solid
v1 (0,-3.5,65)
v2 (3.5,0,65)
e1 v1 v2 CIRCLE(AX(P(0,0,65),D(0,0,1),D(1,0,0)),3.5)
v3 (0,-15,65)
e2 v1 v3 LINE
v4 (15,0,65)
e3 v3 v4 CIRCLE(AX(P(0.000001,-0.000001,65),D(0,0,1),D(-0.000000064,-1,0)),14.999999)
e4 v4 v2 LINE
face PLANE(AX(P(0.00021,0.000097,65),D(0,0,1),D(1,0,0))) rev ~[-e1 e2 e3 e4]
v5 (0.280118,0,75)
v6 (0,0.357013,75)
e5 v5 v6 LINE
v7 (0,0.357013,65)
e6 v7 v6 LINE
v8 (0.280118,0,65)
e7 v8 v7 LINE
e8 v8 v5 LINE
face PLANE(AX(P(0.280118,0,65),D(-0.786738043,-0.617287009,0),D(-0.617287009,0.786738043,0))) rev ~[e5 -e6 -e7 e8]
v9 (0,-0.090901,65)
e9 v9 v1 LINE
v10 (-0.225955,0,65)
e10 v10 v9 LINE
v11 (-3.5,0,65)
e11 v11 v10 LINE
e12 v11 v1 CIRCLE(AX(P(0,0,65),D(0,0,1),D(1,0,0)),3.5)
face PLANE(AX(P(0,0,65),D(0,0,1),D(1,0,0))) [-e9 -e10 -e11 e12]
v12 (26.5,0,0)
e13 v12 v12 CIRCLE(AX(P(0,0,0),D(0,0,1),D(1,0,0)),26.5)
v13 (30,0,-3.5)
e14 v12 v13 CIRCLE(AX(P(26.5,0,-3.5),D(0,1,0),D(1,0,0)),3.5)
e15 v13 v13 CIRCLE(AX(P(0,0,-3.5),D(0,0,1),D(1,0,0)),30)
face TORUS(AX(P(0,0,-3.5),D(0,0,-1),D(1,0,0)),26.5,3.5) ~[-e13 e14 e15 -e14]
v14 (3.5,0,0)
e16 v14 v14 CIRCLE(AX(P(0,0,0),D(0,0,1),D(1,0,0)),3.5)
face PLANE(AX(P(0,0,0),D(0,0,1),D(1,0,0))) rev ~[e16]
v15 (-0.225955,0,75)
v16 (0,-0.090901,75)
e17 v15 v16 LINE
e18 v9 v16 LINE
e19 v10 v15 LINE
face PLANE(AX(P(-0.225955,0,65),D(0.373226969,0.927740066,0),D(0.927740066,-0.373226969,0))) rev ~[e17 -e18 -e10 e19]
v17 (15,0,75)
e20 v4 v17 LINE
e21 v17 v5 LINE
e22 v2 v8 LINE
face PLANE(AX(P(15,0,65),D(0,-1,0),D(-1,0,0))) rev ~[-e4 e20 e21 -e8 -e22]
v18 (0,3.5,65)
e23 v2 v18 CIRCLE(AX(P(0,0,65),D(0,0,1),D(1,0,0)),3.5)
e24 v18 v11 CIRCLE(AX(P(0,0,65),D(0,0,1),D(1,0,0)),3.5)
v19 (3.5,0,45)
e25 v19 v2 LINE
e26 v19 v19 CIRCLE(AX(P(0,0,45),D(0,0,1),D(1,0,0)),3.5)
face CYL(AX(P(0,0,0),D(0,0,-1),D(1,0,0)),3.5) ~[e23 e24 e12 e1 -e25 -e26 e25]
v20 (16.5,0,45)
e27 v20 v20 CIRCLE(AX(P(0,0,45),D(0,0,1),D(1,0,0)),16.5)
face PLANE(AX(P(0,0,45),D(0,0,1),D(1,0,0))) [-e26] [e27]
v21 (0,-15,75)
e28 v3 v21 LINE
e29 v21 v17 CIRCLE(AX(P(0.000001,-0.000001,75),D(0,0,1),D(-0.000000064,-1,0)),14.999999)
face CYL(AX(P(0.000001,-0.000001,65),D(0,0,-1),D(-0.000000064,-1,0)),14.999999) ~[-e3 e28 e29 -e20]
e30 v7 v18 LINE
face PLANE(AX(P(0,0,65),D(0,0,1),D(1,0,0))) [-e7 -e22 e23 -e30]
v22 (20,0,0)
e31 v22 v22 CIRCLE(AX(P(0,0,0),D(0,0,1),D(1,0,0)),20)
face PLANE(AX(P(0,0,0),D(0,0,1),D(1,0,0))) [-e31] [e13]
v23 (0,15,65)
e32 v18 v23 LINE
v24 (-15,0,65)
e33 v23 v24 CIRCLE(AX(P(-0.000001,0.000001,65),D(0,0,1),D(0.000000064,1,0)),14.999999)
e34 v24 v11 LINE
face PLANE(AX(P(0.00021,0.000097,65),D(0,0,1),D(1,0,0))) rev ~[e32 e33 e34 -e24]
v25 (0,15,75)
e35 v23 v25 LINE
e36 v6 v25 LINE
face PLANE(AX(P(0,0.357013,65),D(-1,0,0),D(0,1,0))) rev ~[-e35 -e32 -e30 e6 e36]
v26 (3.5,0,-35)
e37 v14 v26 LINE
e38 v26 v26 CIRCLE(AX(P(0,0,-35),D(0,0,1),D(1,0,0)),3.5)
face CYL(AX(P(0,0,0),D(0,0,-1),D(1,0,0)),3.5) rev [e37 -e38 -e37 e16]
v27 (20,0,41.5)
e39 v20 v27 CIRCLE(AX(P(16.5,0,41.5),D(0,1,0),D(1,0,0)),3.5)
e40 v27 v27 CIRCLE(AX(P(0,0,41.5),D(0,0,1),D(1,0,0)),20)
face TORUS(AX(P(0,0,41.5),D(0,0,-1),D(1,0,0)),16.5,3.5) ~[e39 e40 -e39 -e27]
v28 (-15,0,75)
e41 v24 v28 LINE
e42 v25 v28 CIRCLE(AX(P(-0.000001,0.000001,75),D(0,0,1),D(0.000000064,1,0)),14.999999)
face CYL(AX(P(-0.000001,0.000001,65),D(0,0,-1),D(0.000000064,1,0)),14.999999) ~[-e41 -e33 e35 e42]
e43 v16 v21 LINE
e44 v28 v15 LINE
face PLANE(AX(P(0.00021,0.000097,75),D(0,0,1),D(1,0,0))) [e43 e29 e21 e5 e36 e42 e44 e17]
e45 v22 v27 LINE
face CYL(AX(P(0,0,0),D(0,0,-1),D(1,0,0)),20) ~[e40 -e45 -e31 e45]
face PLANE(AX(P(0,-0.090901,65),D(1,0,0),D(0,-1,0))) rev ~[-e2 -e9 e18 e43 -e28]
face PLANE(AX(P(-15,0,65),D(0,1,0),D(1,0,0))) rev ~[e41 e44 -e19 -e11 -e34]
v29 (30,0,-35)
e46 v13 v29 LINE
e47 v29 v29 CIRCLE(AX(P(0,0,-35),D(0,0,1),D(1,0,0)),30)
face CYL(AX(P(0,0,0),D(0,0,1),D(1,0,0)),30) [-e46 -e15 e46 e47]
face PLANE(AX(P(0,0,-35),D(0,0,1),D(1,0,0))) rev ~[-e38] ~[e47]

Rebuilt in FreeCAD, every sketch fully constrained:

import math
import FreeCAD as App
import Part
import Sketcher
from FreeCAD import Vector


def edges_at(feature, points):
    """Names of the edges that pass closest to the given points."""
    edges = feature.Shape.Edges
    near = lambda p: min(range(len(edges)), key=lambda i: edges[i].distToShape(Part.Vertex(*p))[0])
    return sorted({f"Edge{near(p) + 1}" for p in points})

doc = App.newDocument("Part")
body = doc.addObject("PartDesign::Body", "Body")

# Sketch on XY plane
sketch1 = body.newObject("Sketcher::SketchObject", "Sketch")
sketch1.AttachmentSupport = (doc.getObject("XY_Plane"), [""])
sketch1.MapMode = "FlatFace"
sketch1.addGeometry(Part.Circle(Vector(0, 0, 0), Vector(0, 0, 1), 30), False)
sketch1.addGeometry(Part.Circle(Vector(0, 0, 0), Vector(0, 0, 1), 3.5), False)
sketch1.addConstraint(Sketcher.Constraint("Coincident", 0, 3, -1, 1))
sketch1.addConstraint(Sketcher.Constraint("Coincident", 1, 3, -1, 1))
sketch1.addConstraint(Sketcher.Constraint("Diameter", 0, 60.0))
sketch1.addConstraint(Sketcher.Constraint("Diameter", 1, 7.0))
pad1 = body.newObject("PartDesign::Pad", "Pad")
pad1.Profile = sketch1
pad1.Length = 35
pad1.Reversed = True

# Sketch on XY plane
sketch2 = body.newObject("Sketcher::SketchObject", "Sketch001")
sketch2.AttachmentSupport = (doc.getObject("XY_Plane"), [""])
sketch2.MapMode = "FlatFace"
sketch2.addGeometry(Part.Circle(Vector(0, 0, 0), Vector(0, 0, 1), 20), False)
sketch2.addGeometry(Part.Circle(Vector(0, 0, 0), Vector(0, 0, 1), 3.5), False)
sketch2.addConstraint(Sketcher.Constraint("Coincident", 0, 3, -1, 1))
sketch2.addConstraint(Sketcher.Constraint("Coincident", 1, 3, -1, 1))
sketch2.addConstraint(Sketcher.Constraint("Diameter", 0, 40.0))
sketch2.addConstraint(Sketcher.Constraint("Diameter", 1, 7.0))
pad2 = body.newObject("PartDesign::Pad", "Pad001")
pad2.Profile = sketch2
pad2.Length = 45

# Sketch on XY plane
sketch3 = body.newObject("Sketcher::SketchObject", "Sketch002")
sketch3.AttachmentSupport = (doc.getObject("XY_Plane"), [""])
sketch3.MapMode = "FlatFace"
sketch3.addGeometry(Part.Circle(Vector(0, 0, 0), Vector(0, 0, 1), 3.5), False)
sketch3.addConstraint(Sketcher.Constraint("Coincident", 0, 3, -1, 1))
sketch3.addConstraint(Sketcher.Constraint("Diameter", 0, 7.0))
pad3 = body.newObject("PartDesign::Pad", "Pad002")
pad3.Profile = sketch3
pad3.Length = 65

# Sketch on XY plane
sketch4 = body.newObject("Sketcher::SketchObject", "Sketch003")
sketch4.AttachmentSupport = (doc.getObject("XY_Plane"), [""])
sketch4.MapMode = "FlatFace"
sketch4.AttachmentOffset = App.Placement(Vector(0, 0, 65), App.Rotation())
sketch4.addGeometry(Part.ArcOfCircle(Part.Circle(Vector(0, 0, 0), Vector(0, 0, 1), 15), math.radians(90), math.radians(180)), False)
sketch4.addGeometry(Part.LineSegment(Vector(-15, 0, 0), Vector(-0.23, 0, 0)), False)
sketch4.addGeometry(Part.LineSegment(Vector(-0.23, 0, 0), Vector(0, -0.09, 0)), False)
sketch4.addGeometry(Part.LineSegment(Vector(0, -0.09, 0), Vector(0, -15, 0)), False)
sketch4.addGeometry(Part.ArcOfCircle(Part.Circle(Vector(0, 0, 0), Vector(0, 0, 1), 15), math.radians(-90), math.radians(0)), False)
sketch4.addGeometry(Part.LineSegment(Vector(15, 0, 0), Vector(0.28, 0, 0)), False)
sketch4.addGeometry(Part.LineSegment(Vector(0.28, 0, 0), Vector(0, 0.36, 0)), False)
sketch4.addGeometry(Part.LineSegment(Vector(0, 0.36, 0), Vector(0, 15, 0)), False)
sketch4.addConstraint(Sketcher.Constraint("Coincident", 0, 2, 1, 1))
sketch4.addConstraint(Sketcher.Constraint("Coincident", 1, 2, 2, 1))
sketch4.addConstraint(Sketcher.Constraint("Coincident", 2, 2, 3, 1))
sketch4.addConstraint(Sketcher.Constraint("Coincident", 3, 2, 4, 1))
sketch4.addConstraint(Sketcher.Constraint("Coincident", 4, 2, 5, 1))
sketch4.addConstraint(Sketcher.Constraint("Coincident", 5, 2, 6, 1))
sketch4.addConstraint(Sketcher.Constraint("Coincident", 6, 2, 7, 1))
sketch4.addConstraint(Sketcher.Constraint("Coincident", 7, 2, 0, 1))
sketch4.addConstraint(Sketcher.Constraint("Horizontal", 1))
sketch4.addConstraint(Sketcher.Constraint("Vertical", 3))
sketch4.addConstraint(Sketcher.Constraint("Horizontal", 5))
sketch4.addConstraint(Sketcher.Constraint("Vertical", 7))
sketch4.addConstraint(Sketcher.Constraint("Coincident", 0, 3, -1, 1))
sketch4.addConstraint(Sketcher.Constraint("Coincident", 4, 3, -1, 1))
sketch4.addConstraint(Sketcher.Constraint("Equal", 0, 4))
sketch4.addConstraint(Sketcher.Constraint("PointOnObject", 0, 2, -1))
sketch4.addConstraint(Sketcher.Constraint("PointOnObject", 2, 2, -2))
sketch4.addConstraint(Sketcher.Constraint("PointOnObject", 4, 2, -1))
sketch4.addConstraint(Sketcher.Constraint("PointOnObject", 6, 2, -2))
sketch4.addConstraint(Sketcher.Constraint("Radius", 0, 14.999999))
sketch4.addConstraint(Sketcher.Constraint("DistanceY", 3, 2, 3, 1, 14.909099))
sketch4.addConstraint(Sketcher.Constraint("Distance", 6, 0.453789))
sketch4.addConstraint(Sketcher.Constraint("DistanceX", 1, 1, 1, 2, 14.774045))
sketch4.addConstraint(Sketcher.Constraint("DistanceX", 5, 2, 5, 1, 14.719882))
pad4 = body.newObject("PartDesign::Pad", "Pad003")
pad4.Profile = sketch4
pad4.Length = 10
doc.recompute()

fillet = body.newObject("PartDesign::Fillet", "Fillet")
fillet.Base = (pad4, edges_at(pad4, [(-20, 0, 45), (-30, 0, 0)]))
fillet.Radius = 3.5

doc.recompute()
